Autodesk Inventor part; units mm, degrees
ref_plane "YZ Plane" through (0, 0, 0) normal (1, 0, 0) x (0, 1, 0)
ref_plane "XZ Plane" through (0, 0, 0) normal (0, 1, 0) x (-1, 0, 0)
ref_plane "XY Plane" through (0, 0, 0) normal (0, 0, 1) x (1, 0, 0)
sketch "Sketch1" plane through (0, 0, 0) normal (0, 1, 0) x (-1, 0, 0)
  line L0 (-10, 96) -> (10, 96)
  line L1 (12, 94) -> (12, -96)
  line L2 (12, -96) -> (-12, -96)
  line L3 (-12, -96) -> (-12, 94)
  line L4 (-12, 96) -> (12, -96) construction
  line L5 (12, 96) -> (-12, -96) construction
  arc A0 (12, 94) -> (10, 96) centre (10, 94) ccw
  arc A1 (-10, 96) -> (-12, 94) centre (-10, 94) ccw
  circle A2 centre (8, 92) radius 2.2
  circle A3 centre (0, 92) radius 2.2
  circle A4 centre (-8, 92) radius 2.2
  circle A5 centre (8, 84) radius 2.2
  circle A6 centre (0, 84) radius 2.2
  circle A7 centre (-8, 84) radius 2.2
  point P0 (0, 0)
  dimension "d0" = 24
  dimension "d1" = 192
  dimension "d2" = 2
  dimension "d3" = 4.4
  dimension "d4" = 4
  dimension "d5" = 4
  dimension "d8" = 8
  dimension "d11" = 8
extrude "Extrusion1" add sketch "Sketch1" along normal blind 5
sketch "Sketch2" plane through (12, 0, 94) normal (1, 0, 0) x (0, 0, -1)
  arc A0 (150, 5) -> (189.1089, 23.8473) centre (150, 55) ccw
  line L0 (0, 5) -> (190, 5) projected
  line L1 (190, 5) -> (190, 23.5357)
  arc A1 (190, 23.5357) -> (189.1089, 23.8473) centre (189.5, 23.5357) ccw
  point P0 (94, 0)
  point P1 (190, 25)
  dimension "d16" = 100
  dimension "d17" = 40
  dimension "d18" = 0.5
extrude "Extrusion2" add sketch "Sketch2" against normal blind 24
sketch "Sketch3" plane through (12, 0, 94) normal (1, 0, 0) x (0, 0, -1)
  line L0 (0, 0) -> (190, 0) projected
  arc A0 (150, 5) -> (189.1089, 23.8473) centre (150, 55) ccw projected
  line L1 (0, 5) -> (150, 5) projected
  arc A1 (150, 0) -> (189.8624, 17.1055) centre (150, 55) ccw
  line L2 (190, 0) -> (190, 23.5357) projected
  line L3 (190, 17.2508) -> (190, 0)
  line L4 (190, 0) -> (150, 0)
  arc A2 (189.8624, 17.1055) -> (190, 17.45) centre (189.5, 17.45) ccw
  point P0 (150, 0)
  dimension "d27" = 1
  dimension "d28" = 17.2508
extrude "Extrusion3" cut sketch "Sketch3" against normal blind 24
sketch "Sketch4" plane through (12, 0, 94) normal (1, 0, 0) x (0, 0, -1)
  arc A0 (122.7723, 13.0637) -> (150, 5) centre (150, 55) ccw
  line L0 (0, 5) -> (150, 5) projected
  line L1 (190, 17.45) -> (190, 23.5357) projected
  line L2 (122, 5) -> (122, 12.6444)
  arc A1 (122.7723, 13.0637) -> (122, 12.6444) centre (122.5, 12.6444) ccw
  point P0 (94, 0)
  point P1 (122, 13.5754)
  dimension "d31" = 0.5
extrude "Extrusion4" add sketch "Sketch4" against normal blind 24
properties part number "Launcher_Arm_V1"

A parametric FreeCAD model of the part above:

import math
import FreeCAD as App
import Part
import Sketcher
from FreeCAD import Vector
Q = App.Units.Quantity

doc = App.newDocument("Part")
body = doc.addObject("PartDesign::Body", "Body")

sketch1 = doc.addObject("Sketcher::SketchObject", "Sketch")
body.addObject(sketch1)
sketch1.AttachmentSupport = (doc.XZ_Plane, [""])
sketch1.MapMode = "FlatFace"
sketch1.addGeometry([
    Part.LineSegment(Vector(-10, 96, 0), Vector(10, 96, 0)),
    Part.ArcOfCircle(Part.Circle(Vector(10, 94, 0), Vector(0, 0, 1), 2), math.radians(0), math.radians(90)),
    Part.LineSegment(Vector(12, 94, 0), Vector(12, -96, 0)),
    Part.LineSegment(Vector(12, -96, 0), Vector(-12, -96, 0)),
    Part.LineSegment(Vector(-12, -96, 0), Vector(-12, 94, 0)),
    Part.ArcOfCircle(Part.Circle(Vector(-10, 94, 0), Vector(0, 0, 1), 2), math.radians(90), math.radians(180)),
    Part.Circle(Vector(8, 84, 0), Vector(0, 0, 1), 2.2),
    Part.Circle(Vector(8, 92, 0), Vector(0, 0, 1), 2.2),
    Part.Circle(Vector(0, 84, 0), Vector(0, 0, 1), 2.2),
    Part.Circle(Vector(0, 92, 0), Vector(0, 0, 1), 2.2),
    Part.Circle(Vector(-8, 84, 0), Vector(0, 0, 1), 2.2),
    Part.Circle(Vector(-8, 92, 0), Vector(0, 0, 1), 2.2),
], False)
sketch1.addConstraint([
    Sketcher.Constraint("Tangent", 0, 2, 1, 2),
    Sketcher.Constraint("Tangent", 1, 1, 2, 1),
    Sketcher.Constraint("Coincident", 2, 2, 3, 1),
    Sketcher.Constraint("Coincident", 3, 2, 4, 1),
    Sketcher.Constraint("Tangent", 4, 2, 5, 2),
    Sketcher.Constraint("Tangent", 5, 1, 0, 1),
    Sketcher.Constraint("Horizontal", 0),
    Sketcher.Constraint("Vertical", 2),
    Sketcher.Constraint("Horizontal", 3),
    Sketcher.Constraint("Vertical", 4),
    Sketcher.Constraint("Equal", 1, 5),
    Sketcher.Constraint("Equal", 6, 7),
    Sketcher.Constraint("Equal", 7, 8),
    Sketcher.Constraint("Equal", 8, 9),
    Sketcher.Constraint("Equal", 9, 10),
    Sketcher.Constraint("Equal", 10, 11),
    Sketcher.Constraint("Symmetric", 6, 3, 10, 3, -2),
    Sketcher.Constraint("Symmetric", 7, 3, 11, 3, -2),
    Sketcher.Constraint("PointOnObject", 8, 3, -2),
    Sketcher.Constraint("PointOnObject", 9, 3, -2),
    Sketcher.Constraint("Horizontal", 6, 3, 8, 3),
    Sketcher.Constraint("Horizontal", 7, 3, 9, 3),
    Sketcher.Constraint("Vertical", 6, 3, 7, 3),
    Sketcher.Constraint("Radius", 1, Q("2 mm")),
    Sketcher.Constraint("Diameter", 6, Q("4.4 mm")),
    Sketcher.Constraint("DistanceX", 3, 2, 3, 1, Q("24 mm")),
    Sketcher.Constraint("DistanceX", -1, 1, 6, 3, Q("8 mm")),
    Sketcher.Constraint("DistanceX", 6, 3, 1, 3, Q("2 mm")),
    Sketcher.Constraint("DistanceY", 7, 3, 1, 3, Q("2 mm")),
    Sketcher.Constraint("DistanceY", 6, 3, 7, 3, Q("8 mm")),
    Sketcher.Constraint("DistanceY", 2, 2, 2, 1, Q("190 mm")),
    Sketcher.Constraint("DistanceY", -1, 1, 1, 3, Q("94 mm")),
])
pad1 = doc.addObject("PartDesign::Pad", "Pad")
body.addObject(pad1)
pad1.Profile = sketch1
pad1.Length = 5
pad1.Reversed = True

sketch2 = doc.addObject("Sketcher::SketchObject", "Sketch001")
body.addObject(sketch2)
sketch2.AttachmentSupport = (doc.YZ_Plane, [""])
sketch2.MapMode = "FlatFace"
sketch2.AttachmentOffset = App.Placement(Vector(0, 0, 12), App.Rotation())
sketch2.addGeometry([
    Part.ArcOfCircle(Part.Circle(Vector(55, -56, 0), Vector(0, 0, 1), 50), math.radians(180), math.radians(231.460472)),
    Part.LineSegment(Vector(5, -56, 0), Vector(5, -96, 0)),
    Part.LineSegment(Vector(5, -96, 0), Vector(23.5357, -96, 0)),
    Part.ArcOfCircle(Part.Circle(Vector(23.5357, -95.5, 0), Vector(0, 0, 1), 0.5), math.radians(-90), math.radians(51.454715)),
], False)
sketch2.addConstraint([
    Sketcher.Constraint("Tangent", 0, 1, 1, 1),
    Sketcher.Constraint("Coincident", 1, 2, 2, 1),
    Sketcher.Constraint("Tangent", 2, 2, 3, 1),
    Sketcher.Constraint("Tangent", 3, 2, 0, 2),
    Sketcher.Constraint("Vertical", 1),
    Sketcher.Constraint("Horizontal", 2),
    Sketcher.Constraint("Radius", 0, Q("50 mm")),
    Sketcher.Constraint("Radius", 3, Q("0.5 mm")),
    Sketcher.Constraint("DistanceY", 1, 2, 1, 1, Q("40 mm")),
    Sketcher.Constraint("DistanceX", -1, 1, 0, 3, Q("55 mm")),
    Sketcher.Constraint("DistanceY", 0, 3, -1, 1, Q("56 mm")),
])
pad2 = doc.addObject("PartDesign::Pad", "Pad001")
body.addObject(pad2)
pad2.Profile = sketch2
pad2.Length = 24
pad2.Reversed = True

sketch3 = doc.addObject("Sketcher::SketchObject", "Sketch002")
body.addObject(sketch3)
sketch3.AttachmentSupport = (doc.YZ_Plane, [""])
sketch3.MapMode = "FlatFace"
sketch3.AttachmentOffset = App.Placement(Vector(0, 0, 12), App.Rotation())
sketch3.addGeometry([
    Part.ArcOfCircle(Part.Circle(Vector(55, -56, 0), Vector(0, 0, 1), 55), math.radians(180), math.radians(226.449753)),
    Part.LineSegment(Vector(0, -56, 0), Vector(0, -96, 0)),
    Part.LineSegment(Vector(0, -96, 0), Vector(17.45, -96, 0)),
    Part.ArcOfCircle(Part.Circle(Vector(17.45, -95.5, 0), Vector(0, 0, 1), 0.500014), math.radians(-133.549476), math.radians(-90)),
], False)
sketch3.addConstraint([
    Sketcher.Constraint("Tangent", 0, 1, 1, 1),
    Sketcher.Constraint("Coincident", 1, 2, 2, 1),
    Sketcher.Constraint("Tangent", 2, 2, 3, 2),
    Sketcher.Constraint("Tangent", 3, 1, 0, 2),
    Sketcher.Constraint("Vertical", 1),
    Sketcher.Constraint("Horizontal", 2),
    Sketcher.Constraint("PointOnObject", 0, 1, -2),
    Sketcher.Constraint("Radius", 3, Q("0.5 mm")),
    Sketcher.Constraint("Radius", 0, Q("55 mm")),
    Sketcher.Constraint("DistanceY", 1, 2, 1, 1, Q("40 mm")),
    Sketcher.Constraint("DistanceY", 0, 3, -1, 1, Q("56 mm")),
])
pocket1 = doc.addObject("PartDesign::Pocket", "Pocket")
body.addObject(pocket1)
pocket1.Profile = sketch3
pocket1.Length = 24

sketch4 = doc.addObject("Sketcher::SketchObject", "Sketch003")
body.addObject(sketch4)
sketch4.AttachmentSupport = (doc.YZ_Plane, [""])
sketch4.MapMode = "FlatFace"
sketch4.AttachmentOffset = App.Placement(Vector(0, 0, 12), App.Rotation())
sketch4.addGeometry([
    Part.ArcOfCircle(Part.Circle(Vector(55, -56, 0), Vector(0, 0, 1), 50.000009), math.radians(147.005816), math.radians(180)),
    Part.ArcOfCircle(Part.Circle(Vector(12.6444, -28.5, 0), Vector(0, 0, 1), 0.49996), math.radians(-33.000326), math.radians(90)),
    Part.LineSegment(Vector(12.6444, -28, 0), Vector(5, -28, 0)),
    Part.LineSegment(Vector(5, -28, 0), Vector(5, -56, 0)),
], False)
sketch4.addConstraint([
    Sketcher.Constraint("Tangent", 0, 1, 1, 1),
    Sketcher.Constraint("Tangent", 1, 2, 2, 1),
    Sketcher.Constraint("Coincident", 2, 2, 3, 1),
    Sketcher.Constraint("Tangent", 3, 2, 0, 2),
    Sketcher.Constraint("Horizontal", 2),
    Sketcher.Constraint("Vertical", 3),
    Sketcher.Constraint("Radius", 1, Q("0.5 mm")),
    Sketcher.Constraint("Radius", 0, Q("50 mm")),
    Sketcher.Constraint("DistanceY", 3, 2, 3, 1, Q("28 mm")),
    Sketcher.Constraint("DistanceX", -1, 1, 0, 3, Q("55 mm")),
    Sketcher.Constraint("DistanceY", 0, 3, -1, 1, Q("56 mm")),
])
pad3 = doc.addObject("PartDesign::Pad", "Pad002")
body.addObject(pad3)
pad3.Profile = sketch4
pad3.Length = 24
pad3.Reversed = True

doc.recompute()
